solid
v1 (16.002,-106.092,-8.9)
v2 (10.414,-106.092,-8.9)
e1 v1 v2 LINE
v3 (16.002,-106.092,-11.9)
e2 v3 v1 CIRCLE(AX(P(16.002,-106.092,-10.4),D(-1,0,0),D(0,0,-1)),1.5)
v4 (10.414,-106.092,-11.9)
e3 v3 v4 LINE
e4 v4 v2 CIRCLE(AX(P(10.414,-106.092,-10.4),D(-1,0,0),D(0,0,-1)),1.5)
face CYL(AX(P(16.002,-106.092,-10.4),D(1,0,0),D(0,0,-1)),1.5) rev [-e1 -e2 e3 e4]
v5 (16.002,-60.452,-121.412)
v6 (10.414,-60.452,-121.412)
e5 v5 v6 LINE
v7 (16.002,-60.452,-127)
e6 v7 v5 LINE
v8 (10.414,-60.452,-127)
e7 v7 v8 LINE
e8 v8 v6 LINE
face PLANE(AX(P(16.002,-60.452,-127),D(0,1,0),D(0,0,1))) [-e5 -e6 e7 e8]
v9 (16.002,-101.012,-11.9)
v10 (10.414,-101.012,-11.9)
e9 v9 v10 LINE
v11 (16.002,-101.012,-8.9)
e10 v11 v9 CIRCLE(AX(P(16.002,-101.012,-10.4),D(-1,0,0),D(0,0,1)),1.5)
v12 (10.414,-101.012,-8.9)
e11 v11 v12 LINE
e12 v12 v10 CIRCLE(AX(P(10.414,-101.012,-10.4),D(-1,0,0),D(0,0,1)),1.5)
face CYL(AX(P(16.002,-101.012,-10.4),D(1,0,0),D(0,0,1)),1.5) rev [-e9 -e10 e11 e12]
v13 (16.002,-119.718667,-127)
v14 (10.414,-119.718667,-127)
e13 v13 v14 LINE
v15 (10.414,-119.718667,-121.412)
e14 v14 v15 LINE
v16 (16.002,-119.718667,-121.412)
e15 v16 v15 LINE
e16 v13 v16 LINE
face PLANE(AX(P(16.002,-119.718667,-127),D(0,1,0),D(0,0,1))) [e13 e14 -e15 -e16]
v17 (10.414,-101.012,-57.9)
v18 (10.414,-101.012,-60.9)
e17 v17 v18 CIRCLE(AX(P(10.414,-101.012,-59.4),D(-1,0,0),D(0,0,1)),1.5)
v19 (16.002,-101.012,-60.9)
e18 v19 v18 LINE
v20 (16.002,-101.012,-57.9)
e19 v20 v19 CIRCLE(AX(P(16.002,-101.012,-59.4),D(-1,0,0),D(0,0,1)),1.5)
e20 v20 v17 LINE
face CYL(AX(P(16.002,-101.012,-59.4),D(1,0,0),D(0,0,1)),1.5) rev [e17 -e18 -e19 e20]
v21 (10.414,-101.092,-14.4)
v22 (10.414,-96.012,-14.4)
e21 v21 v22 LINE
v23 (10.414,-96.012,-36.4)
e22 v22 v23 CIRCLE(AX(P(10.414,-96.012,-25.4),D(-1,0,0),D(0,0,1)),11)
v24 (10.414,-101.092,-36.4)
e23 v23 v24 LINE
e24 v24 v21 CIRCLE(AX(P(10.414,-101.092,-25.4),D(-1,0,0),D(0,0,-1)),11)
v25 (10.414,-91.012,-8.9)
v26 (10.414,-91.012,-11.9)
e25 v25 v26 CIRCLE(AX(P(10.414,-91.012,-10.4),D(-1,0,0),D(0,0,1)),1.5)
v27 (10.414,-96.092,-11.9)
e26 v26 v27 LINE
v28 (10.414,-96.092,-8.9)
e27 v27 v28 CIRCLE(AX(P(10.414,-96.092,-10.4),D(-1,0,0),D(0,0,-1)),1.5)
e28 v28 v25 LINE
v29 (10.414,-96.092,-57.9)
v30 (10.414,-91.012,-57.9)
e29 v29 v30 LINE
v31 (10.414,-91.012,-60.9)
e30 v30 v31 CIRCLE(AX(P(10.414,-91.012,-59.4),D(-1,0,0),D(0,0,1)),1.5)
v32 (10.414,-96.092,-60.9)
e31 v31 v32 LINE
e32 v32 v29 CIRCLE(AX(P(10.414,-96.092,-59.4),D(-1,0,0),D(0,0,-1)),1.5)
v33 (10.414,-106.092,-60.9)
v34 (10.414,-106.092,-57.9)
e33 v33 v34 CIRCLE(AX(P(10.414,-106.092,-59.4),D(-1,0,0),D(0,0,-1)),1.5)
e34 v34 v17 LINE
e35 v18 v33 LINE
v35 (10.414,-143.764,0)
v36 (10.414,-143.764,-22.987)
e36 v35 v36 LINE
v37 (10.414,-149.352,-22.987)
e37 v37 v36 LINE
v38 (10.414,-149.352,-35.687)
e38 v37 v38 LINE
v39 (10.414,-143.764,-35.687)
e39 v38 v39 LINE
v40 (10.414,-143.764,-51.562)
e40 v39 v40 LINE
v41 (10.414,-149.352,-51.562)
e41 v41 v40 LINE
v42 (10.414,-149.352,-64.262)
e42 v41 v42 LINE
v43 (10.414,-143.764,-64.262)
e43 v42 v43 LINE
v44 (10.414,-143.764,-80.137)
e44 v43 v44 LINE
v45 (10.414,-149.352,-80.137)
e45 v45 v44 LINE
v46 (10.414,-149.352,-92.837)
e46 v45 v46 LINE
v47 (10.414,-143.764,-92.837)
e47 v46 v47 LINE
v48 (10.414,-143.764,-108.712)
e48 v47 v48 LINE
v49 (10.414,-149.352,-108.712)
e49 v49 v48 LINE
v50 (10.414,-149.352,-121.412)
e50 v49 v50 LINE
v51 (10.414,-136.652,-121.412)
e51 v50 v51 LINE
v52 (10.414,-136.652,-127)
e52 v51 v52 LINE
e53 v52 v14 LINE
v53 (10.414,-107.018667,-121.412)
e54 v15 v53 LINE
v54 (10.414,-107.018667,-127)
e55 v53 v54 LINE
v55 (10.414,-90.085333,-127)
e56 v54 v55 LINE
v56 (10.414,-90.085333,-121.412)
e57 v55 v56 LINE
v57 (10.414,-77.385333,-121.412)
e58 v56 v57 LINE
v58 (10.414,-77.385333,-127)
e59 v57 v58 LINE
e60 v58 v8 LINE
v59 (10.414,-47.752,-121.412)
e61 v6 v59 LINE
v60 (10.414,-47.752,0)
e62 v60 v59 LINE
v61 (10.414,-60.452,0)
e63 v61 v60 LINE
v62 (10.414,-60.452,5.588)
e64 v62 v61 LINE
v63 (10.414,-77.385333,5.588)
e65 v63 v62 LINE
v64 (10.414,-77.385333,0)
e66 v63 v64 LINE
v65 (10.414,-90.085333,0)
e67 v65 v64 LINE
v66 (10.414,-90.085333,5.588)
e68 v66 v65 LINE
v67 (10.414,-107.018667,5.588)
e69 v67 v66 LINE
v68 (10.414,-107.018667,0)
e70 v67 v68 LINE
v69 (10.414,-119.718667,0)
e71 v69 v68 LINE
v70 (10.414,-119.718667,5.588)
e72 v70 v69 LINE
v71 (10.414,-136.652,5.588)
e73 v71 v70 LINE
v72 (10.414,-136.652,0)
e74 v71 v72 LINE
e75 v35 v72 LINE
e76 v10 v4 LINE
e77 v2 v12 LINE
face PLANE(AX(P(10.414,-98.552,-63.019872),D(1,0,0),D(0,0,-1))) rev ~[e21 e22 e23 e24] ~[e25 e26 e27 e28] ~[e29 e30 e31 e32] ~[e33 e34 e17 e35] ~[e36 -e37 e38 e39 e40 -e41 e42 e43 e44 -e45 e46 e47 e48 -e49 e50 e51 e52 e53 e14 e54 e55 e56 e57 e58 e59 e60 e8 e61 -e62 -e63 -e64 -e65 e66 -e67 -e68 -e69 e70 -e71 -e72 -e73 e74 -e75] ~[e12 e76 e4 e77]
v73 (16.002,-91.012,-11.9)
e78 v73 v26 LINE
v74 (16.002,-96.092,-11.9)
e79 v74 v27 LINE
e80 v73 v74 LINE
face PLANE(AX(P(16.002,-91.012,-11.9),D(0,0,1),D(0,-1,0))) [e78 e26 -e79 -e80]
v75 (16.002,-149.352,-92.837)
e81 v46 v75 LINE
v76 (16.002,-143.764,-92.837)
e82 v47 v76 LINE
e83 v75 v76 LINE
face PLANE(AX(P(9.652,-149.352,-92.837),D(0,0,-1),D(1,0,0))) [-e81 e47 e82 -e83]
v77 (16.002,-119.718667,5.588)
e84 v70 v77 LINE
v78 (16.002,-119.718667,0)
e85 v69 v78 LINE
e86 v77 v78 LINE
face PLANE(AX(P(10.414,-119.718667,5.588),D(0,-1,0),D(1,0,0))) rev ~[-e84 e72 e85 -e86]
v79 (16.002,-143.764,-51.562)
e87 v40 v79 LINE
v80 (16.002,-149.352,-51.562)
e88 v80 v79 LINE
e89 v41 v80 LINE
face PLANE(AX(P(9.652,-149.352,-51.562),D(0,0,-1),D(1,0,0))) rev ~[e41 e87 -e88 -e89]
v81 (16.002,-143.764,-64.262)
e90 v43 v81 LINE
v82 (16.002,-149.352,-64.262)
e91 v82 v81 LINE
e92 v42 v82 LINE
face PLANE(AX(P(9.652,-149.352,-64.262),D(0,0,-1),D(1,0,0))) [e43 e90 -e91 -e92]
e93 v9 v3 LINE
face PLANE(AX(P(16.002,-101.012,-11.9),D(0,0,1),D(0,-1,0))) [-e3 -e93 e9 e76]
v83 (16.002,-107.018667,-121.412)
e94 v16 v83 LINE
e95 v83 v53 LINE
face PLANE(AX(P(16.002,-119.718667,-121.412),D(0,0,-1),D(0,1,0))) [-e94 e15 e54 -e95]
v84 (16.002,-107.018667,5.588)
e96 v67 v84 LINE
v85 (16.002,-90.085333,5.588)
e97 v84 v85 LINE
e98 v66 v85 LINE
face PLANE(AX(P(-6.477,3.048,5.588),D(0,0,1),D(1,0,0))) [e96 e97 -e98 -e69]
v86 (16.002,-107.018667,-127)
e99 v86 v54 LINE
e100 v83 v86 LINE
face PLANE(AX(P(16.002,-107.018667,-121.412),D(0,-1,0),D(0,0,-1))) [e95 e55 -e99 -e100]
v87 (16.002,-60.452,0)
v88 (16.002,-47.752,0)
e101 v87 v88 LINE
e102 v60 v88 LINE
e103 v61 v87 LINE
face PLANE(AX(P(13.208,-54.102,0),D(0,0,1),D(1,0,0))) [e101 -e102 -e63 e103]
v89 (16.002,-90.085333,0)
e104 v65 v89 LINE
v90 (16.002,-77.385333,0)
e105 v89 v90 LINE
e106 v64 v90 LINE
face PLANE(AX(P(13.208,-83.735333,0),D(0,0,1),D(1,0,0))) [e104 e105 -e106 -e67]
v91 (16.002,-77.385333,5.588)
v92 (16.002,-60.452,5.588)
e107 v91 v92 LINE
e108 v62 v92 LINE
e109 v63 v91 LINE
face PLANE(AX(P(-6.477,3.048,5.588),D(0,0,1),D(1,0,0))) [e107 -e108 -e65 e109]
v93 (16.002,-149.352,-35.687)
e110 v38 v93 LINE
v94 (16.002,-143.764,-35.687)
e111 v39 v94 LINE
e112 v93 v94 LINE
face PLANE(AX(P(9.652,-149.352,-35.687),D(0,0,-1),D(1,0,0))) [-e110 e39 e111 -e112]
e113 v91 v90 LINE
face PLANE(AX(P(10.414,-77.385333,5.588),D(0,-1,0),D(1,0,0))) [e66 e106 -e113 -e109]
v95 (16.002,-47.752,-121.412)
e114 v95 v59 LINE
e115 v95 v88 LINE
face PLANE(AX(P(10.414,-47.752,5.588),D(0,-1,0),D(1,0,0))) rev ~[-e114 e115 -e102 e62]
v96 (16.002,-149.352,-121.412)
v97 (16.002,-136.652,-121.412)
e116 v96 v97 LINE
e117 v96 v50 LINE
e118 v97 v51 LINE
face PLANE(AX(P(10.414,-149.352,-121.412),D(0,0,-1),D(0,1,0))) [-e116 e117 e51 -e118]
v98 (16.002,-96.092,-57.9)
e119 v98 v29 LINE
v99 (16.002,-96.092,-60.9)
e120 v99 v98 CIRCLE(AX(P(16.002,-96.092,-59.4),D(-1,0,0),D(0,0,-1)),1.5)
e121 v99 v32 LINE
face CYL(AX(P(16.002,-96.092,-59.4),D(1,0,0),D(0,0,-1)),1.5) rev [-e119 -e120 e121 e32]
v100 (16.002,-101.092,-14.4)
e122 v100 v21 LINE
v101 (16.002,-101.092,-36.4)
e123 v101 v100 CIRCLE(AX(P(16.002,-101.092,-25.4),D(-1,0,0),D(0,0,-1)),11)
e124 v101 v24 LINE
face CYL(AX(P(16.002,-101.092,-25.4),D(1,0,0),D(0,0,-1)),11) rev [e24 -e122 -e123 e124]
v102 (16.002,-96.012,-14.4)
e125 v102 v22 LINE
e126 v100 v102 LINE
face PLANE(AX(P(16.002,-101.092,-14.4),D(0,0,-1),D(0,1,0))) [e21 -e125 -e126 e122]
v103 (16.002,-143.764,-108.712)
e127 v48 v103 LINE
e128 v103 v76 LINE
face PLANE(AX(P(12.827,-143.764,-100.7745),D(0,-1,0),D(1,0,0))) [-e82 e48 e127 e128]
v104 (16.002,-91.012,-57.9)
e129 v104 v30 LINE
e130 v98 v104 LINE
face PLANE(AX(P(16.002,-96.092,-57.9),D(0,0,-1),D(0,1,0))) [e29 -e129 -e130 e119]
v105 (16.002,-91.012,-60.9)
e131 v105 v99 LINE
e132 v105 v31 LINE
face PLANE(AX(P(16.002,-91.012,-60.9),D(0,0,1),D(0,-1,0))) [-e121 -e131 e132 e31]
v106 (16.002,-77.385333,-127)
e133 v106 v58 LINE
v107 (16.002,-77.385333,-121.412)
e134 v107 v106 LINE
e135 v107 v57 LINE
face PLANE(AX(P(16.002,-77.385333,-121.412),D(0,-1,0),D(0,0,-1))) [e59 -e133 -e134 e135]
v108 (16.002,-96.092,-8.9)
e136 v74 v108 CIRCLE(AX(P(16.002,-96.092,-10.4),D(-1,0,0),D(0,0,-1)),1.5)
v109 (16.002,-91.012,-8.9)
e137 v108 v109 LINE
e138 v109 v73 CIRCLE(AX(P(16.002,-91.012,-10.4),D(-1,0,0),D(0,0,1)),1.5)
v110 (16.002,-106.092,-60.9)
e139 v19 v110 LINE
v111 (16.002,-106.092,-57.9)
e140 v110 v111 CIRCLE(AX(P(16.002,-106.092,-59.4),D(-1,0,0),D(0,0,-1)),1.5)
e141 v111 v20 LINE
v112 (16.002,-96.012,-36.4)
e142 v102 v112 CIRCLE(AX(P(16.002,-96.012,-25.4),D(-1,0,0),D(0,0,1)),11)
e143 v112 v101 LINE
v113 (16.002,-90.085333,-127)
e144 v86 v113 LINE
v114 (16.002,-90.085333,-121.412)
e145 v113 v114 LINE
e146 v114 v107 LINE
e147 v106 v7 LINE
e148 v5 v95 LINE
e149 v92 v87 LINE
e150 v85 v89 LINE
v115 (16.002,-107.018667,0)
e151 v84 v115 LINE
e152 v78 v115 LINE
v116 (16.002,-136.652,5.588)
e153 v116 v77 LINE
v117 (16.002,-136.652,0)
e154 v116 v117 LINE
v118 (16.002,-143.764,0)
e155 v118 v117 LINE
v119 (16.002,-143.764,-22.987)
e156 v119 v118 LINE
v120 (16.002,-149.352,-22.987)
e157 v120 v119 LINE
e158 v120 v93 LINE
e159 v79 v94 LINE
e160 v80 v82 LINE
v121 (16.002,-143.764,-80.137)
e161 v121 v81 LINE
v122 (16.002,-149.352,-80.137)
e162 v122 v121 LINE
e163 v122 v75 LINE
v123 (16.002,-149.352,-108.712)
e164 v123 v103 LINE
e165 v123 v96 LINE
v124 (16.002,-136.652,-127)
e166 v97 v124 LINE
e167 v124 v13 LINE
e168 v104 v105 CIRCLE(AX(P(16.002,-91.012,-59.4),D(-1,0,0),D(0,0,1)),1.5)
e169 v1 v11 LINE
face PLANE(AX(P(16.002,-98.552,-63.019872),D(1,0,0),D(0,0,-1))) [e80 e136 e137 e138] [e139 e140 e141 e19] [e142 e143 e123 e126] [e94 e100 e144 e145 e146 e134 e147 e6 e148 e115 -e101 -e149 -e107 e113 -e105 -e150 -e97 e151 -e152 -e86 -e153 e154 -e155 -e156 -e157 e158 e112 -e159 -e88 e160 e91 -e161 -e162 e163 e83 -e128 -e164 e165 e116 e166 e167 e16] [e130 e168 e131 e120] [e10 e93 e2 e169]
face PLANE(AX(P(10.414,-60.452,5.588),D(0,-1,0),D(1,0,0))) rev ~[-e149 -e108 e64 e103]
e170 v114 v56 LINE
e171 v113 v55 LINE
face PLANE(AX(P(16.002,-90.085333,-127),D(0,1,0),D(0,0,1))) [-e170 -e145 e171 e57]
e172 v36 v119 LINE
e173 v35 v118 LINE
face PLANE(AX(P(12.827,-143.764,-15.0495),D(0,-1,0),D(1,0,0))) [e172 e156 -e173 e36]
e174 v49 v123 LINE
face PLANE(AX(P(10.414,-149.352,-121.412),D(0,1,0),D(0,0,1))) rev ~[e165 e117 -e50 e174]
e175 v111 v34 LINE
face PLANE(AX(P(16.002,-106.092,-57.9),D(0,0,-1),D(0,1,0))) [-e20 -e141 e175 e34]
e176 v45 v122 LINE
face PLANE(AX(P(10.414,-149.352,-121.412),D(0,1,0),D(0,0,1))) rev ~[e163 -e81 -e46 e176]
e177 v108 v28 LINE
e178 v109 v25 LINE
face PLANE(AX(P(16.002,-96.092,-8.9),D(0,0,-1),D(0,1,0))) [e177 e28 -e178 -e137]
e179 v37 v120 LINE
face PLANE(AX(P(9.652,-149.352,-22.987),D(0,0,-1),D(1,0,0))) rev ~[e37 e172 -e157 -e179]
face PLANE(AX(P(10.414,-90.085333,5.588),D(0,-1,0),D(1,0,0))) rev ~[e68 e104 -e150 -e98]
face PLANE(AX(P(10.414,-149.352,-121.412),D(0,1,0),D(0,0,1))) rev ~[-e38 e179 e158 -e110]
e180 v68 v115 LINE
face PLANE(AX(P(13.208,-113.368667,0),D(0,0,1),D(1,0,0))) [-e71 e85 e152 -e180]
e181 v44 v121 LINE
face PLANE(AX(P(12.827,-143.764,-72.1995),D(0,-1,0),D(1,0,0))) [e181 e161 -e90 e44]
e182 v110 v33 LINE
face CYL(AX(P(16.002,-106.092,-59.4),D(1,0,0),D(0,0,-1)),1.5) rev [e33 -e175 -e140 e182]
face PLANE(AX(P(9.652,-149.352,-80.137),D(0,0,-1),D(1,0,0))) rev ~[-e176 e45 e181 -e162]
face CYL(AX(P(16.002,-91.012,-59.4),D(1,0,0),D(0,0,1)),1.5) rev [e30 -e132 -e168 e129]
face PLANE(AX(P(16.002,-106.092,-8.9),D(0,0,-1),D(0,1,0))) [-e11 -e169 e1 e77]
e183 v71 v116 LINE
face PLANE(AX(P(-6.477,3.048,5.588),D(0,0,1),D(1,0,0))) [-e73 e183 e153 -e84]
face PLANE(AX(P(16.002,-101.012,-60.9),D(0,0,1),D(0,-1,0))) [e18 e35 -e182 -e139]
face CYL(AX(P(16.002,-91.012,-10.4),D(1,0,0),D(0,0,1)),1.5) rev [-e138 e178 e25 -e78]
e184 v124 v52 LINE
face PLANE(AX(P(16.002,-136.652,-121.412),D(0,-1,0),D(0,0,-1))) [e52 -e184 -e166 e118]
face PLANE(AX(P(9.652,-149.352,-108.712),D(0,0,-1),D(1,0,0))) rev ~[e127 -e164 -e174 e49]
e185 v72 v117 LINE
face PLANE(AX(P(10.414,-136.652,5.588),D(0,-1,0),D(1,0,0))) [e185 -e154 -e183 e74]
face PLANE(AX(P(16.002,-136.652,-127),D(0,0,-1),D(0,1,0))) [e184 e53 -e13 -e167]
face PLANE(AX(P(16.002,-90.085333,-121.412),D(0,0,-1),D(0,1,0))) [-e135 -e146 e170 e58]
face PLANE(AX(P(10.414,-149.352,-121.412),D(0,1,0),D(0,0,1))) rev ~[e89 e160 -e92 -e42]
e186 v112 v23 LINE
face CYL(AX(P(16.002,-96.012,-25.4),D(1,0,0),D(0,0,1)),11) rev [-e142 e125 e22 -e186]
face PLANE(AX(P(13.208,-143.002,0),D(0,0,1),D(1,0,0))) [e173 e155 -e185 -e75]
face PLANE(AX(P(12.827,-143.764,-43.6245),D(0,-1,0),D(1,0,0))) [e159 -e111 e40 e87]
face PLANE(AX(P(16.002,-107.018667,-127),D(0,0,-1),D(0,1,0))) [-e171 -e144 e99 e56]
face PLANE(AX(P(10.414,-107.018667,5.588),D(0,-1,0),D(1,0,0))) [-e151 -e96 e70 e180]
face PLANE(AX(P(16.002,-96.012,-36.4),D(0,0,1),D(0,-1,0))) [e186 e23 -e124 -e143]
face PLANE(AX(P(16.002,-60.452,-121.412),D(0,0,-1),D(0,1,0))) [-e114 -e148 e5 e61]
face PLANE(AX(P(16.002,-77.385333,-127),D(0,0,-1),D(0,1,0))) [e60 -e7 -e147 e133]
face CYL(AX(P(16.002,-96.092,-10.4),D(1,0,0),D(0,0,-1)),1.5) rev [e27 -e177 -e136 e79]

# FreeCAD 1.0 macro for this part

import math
import FreeCAD as App
import Part
import Sketcher

V = App.Vector
Q = App.Units.Quantity


def add_polygon(sketch, points):
    """Adds a closed chain of lines whose ends are joined by coincident constraints."""
    first, n = sketch.GeometryCount, len(points)
    for a, b in zip(points, points[1:] + points[:1]):
        sketch.addGeometry(Part.LineSegment(App.Vector(*a, 0), App.Vector(*b, 0)), False)
    for i in range(n):
        sketch.addConstraint(Sketcher.Constraint("Coincident", first + i, 2, first + (i + 1) % n, 1))

doc = App.newDocument("Part")
params = doc.addObject("Spreadsheet::Sheet", "Params")
for row, (alias, value) in enumerate([
    ("sketch1_radius", "0.1 in"),
    ("sketch1_height", "12 in"),
    ("sketch1_height2", "10.9 in"),
    ("sketch1_width", "1.77 in"),
    ("sketch1_width2", "0.41 in"),
    ("pad1_length", "0.22 in"),
    ("sketch2_width", "4 in"),
    ("sketch2_height", "5 in"),
    ("sketch2_width2", "0.5 in"),
    ("sketch2_width3", "0.2 in"),
    ("sketch2_height2", "0.22 in"),
    ("pad2_length", "0.22 in"),
    ("sketch3_width", "0.22 in"),
    ("sketch3_height", "4.78 in"),
    ("pad3_length", "1.55 in"),
    ("sketch4_radius", "0.1 in"),
    ("sketch4_height", "4 in"),
    ("sketch4_height2", "10.9 in"),
    ("sketch4_width", "0.22 in"),
    ("sketch4_width2", "0.41 in"),
    ("sketch5_height", "0.5 in"),
    ("sketch5_width", "0.22 in"),
    ("pocket2_length", "0.22 in"),
    ("sketch6_width", "0.25 in"),
    ("sketch6_height", "0.625 in"),
    ("sketch6_height2", "1.125 in"),
    ("pocket3_length", "0.22 in"),
], start=1):
    params.set(f"A{row}", alias)
    params.set(f"B{row}", "=" + value)
    params.setAlias(f"B{row}", alias)

body = doc.addObject("PartDesign::Body", "Body")

# Sketch on XY plane
sketch1 = body.newObject("Sketcher::SketchObject", "Sketch")
sketch1.AttachmentSupport = (doc.getObject("XY_Plane"), [""])
sketch1.MapMode = "FlatFace"
add_polygon(sketch1, [(-29, 155.4), (-29, -149.4), (16, -149.4), (16, 155.4)])  # lines 0-3
sketch1.addGeometry(Part.LineSegment(V(-3.3, -143, 0), V(-3.3, 133.9, 0)), False)  # 4
sketch1.addGeometry(Part.ArcOfCircle(Part.Circle(V(-5.8, 133.9, 0), V(0, 0, 1), 2.5), math.radians(0), math.radians(90)), False)  # 5
sketch1.addGeometry(Part.LineSegment(V(-5.8, 136.4, 0), V(-16.3, 136.4, 0)), False)  # 6
sketch1.addGeometry(Part.LineSegment(V(-16.3, 136.4, 0), V(-16.3, 143, 0)), False)  # 7
sketch1.addGeometry(Part.LineSegment(V(-16.3, 143, 0), V(3.3, 143, 0)), False)  # 8
sketch1.addGeometry(Part.LineSegment(V(3.3, 143, 0), V(3.3, -143, 0)), False)  # 9
sketch1.addGeometry(Part.LineSegment(V(3.3, -143, 0), V(-3.3, -143, 0)), False)  # 10
sketch1.addConstraint(Sketcher.Constraint("Tangent", 4, 2, 5, 1))
sketch1.addConstraint(Sketcher.Constraint("Tangent", 5, 2, 6, 1))
sketch1.addConstraint(Sketcher.Constraint("Coincident", 6, 2, 7, 1))
sketch1.addConstraint(Sketcher.Constraint("Coincident", 7, 2, 8, 1))
sketch1.addConstraint(Sketcher.Constraint("Coincident", 8, 2, 9, 1))
sketch1.addConstraint(Sketcher.Constraint("Coincident", 9, 2, 10, 1))
sketch1.addConstraint(Sketcher.Constraint("Coincident", 10, 2, 4, 1))
sketch1.addConstraint(Sketcher.Constraint("Vertical", 0))
sketch1.addConstraint(Sketcher.Constraint("Horizontal", 1))
sketch1.addConstraint(Sketcher.Constraint("Vertical", 2))
sketch1.addConstraint(Sketcher.Constraint("Horizontal", 3))
sketch1.addConstraint(Sketcher.Constraint("Vertical", 4))
sketch1.addConstraint(Sketcher.Constraint("Horizontal", 6))
sketch1.addConstraint(Sketcher.Constraint("Vertical", 7))
sketch1.addConstraint(Sketcher.Constraint("Horizontal", 8))
sketch1.addConstraint(Sketcher.Constraint("Vertical", 9))
sketch1.addConstraint(Sketcher.Constraint("Horizontal", 10))
sketch1.addConstraint(Sketcher.Constraint("Symmetric", 8, 2, 10, 2, -1, 1))
sketch1.addConstraint(Sketcher.Constraint("Equal", 10, 7))
sketch1.addConstraint(Sketcher.Constraint("Radius", 5, Q("0.1 in")))
sketch1.addConstraint(Sketcher.Constraint("DistanceY", 0, 2, 0, 1, Q("12 in")))
sketch1.addConstraint(Sketcher.Constraint("DistanceY", 4, 1, 4, 2, Q("10.9 in")))
sketch1.addConstraint(Sketcher.Constraint("DistanceX", 1, 1, 1, 2, Q("1.77 in")))
sketch1.addConstraint(Sketcher.Constraint("DistanceX", 6, 2, 6, 1, Q("0.41 in")))
sketch1.addConstraint(Sketcher.Constraint("DistanceX", 8, 1, 8, 2, Q("0.77 in")))
sketch1.addConstraint(Sketcher.Constraint("DistanceX", 3, 2, 6, 2, Q("0.5 in")))
sketch1.addConstraint(Sketcher.Constraint("DistanceY", 0, 2, -1, 1, Q("5.88 in")))
sketch1.setExpression("Constraints[23]", "Params.sketch1_radius")
sketch1.setExpression("Constraints[24]", "Params.sketch1_height")
sketch1.setExpression("Constraints[25]", "Params.sketch1_height2")
sketch1.setExpression("Constraints[26]", "Params.sketch1_width")
sketch1.setExpression("Constraints[27]", "Params.sketch1_width2")
pad1 = body.newObject("PartDesign::Pad", "Pad")
pad1.Profile = sketch1
pad1.setExpression("Length", "Params.pad1_length")

# Sketch on YZ plane
sketch2 = body.newObject("Sketcher::SketchObject", "Sketch001")
sketch2.AttachmentSupport = (doc.getObject("YZ_Plane"), [""])
sketch2.MapMode = "FlatFace"
sketch2.AttachmentOffset = App.Placement(V(0, 0, 0.63 * 25.4), App.Rotation())
add_polygon(sketch2, [(-47.8, -121.4), (-47.8, 5.6), (-149.4, 5.6), (-149.4, -121.4), (-136.7, -121.4), (-136.7, -127), (-119.7, -127), (-119.7, -121.4), (-107, -121.4), (-107, -127), (-90.1, -127), (-90.1, -121.4), (-77.4, -121.4), (-77.4, -127), (-60.5, -127), (-60.5, -121.4)])  # lines 0-15
sketch2.addGeometry(Part.LineSegment(V(-101, -11.9, 0), V(-106.1, -11.9, 0)), False)  # 16
sketch2.addGeometry(Part.ArcOfCircle(Part.Circle(V(-106.1, -10.4, 0), V(0, 0, 1), 1.5), math.radians(90), math.radians(270)), False)  # 17
sketch2.addGeometry(Part.LineSegment(V(-106.1, -8.9, 0), V(-101, -8.9, 0)), False)  # 18
sketch2.addGeometry(Part.ArcOfCircle(Part.Circle(V(-101, -10.4, 0), V(0, 0, 1), 1.5), math.radians(-90), math.radians(90)), False)  # 19
sketch2.addGeometry(Part.LineSegment(V(-101, -60.9, 0), V(-106.1, -60.9, 0)), False)  # 20
sketch2.addGeometry(Part.ArcOfCircle(Part.Circle(V(-106.1, -59.4, 0), V(0, 0, 1), 1.5), math.radians(90), math.radians(270)), False)  # 21
sketch2.addGeometry(Part.LineSegment(V(-106.1, -57.9, 0), V(-101, -57.9, 0)), False)  # 22
sketch2.addGeometry(Part.ArcOfCircle(Part.Circle(V(-101, -59.4, 0), V(0, 0, 1), 1.5), math.radians(-90), math.radians(90)), False)  # 23
sketch2.addGeometry(Part.ArcOfCircle(Part.Circle(V(-96.1, -10.4, 0), V(0, 0, 1), 1.5), math.radians(90), math.radians(270)), False)  # 24
sketch2.addGeometry(Part.LineSegment(V(-96.1, -8.9, 0), V(-91, -8.9, 0)), False)  # 25
sketch2.addGeometry(Part.ArcOfCircle(Part.Circle(V(-91, -10.4, 0), V(0, 0, 1), 1.5), math.radians(-90), math.radians(90)), False)  # 26
sketch2.addGeometry(Part.LineSegment(V(-91, -11.9, 0), V(-96.1, -11.9, 0)), False)  # 27
sketch2.addGeometry(Part.LineSegment(V(-96, -36.4, 0), V(-101.1, -36.4, 0)), False)  # 28
sketch2.addGeometry(Part.ArcOfCircle(Part.Circle(V(-101.1, -25.4, 0), V(0, 0, 1), 11), math.radians(90), math.radians(270)), False)  # 29
sketch2.addGeometry(Part.LineSegment(V(-101.1, -14.4, 0), V(-96, -14.4, 0)), False)  # 30
sketch2.addGeometry(Part.ArcOfCircle(Part.Circle(V(-96, -25.4, 0), V(0, 0, 1), 11), math.radians(-90), math.radians(90)), False)  # 31
sketch2.addGeometry(Part.LineSegment(V(-96.1, -57.9, 0), V(-91, -57.9, 0)), False)  # 32
sketch2.addGeometry(Part.ArcOfCircle(Part.Circle(V(-91, -59.4, 0), V(0, 0, 1), 1.5), math.radians(-90), math.radians(90)), False)  # 33
sketch2.addGeometry(Part.LineSegment(V(-91, -60.9, 0), V(-96.1, -60.9, 0)), False)  # 34
sketch2.addGeometry(Part.ArcOfCircle(Part.Circle(V(-96.1, -59.4, 0), V(0, 0, 1), 1.5), math.radians(90), math.radians(270)), False)  # 35
sketch2.addConstraint(Sketcher.Constraint("Tangent", 16, 2, 17, 2))
sketch2.addConstraint(Sketcher.Constraint("Tangent", 17, 1, 18, 1))
sketch2.addConstraint(Sketcher.Constraint("Tangent", 18, 2, 19, 2))
sketch2.addConstraint(Sketcher.Constraint("Tangent", 19, 1, 16, 1))
sketch2.addConstraint(Sketcher.Constraint("Tangent", 20, 2, 21, 2))
sketch2.addConstraint(Sketcher.Constraint("Tangent", 21, 1, 22, 1))
sketch2.addConstraint(Sketcher.Constraint("Tangent", 22, 2, 23, 2))
sketch2.addConstraint(Sketcher.Constraint("Tangent", 23, 1, 20, 1))
sketch2.addConstraint(Sketcher.Constraint("Tangent", 24, 1, 25, 1))
sketch2.addConstraint(Sketcher.Constraint("Tangent", 25, 2, 26, 2))
sketch2.addConstraint(Sketcher.Constraint("Tangent", 26, 1, 27, 1))
sketch2.addConstraint(Sketcher.Constraint("Tangent", 27, 2, 24, 2))
sketch2.addConstraint(Sketcher.Constraint("Tangent", 28, 2, 29, 2))
sketch2.addConstraint(Sketcher.Constraint("Tangent", 29, 1, 30, 1))
sketch2.addConstraint(Sketcher.Constraint("Tangent", 30, 2, 31, 2))
sketch2.addConstraint(Sketcher.Constraint("Tangent", 31, 1, 28, 1))
sketch2.addConstraint(Sketcher.Constraint("Tangent", 32, 2, 33, 2))
sketch2.addConstraint(Sketcher.Constraint("Tangent", 33, 1, 34, 1))
sketch2.addConstraint(Sketcher.Constraint("Tangent", 34, 2, 35, 2))
sketch2.addConstraint(Sketcher.Constraint("Tangent", 35, 1, 32, 1))
sketch2.addConstraint(Sketcher.Constraint("Vertical", 0))
sketch2.addConstraint(Sketcher.Constraint("Horizontal", 1))
sketch2.addConstraint(Sketcher.Constraint("Vertical", 2))
sketch2.addConstraint(Sketcher.Constraint("Horizontal", 3))
sketch2.addConstraint(Sketcher.Constraint("Vertical", 4))
sketch2.addConstraint(Sketcher.Constraint("Horizontal", 5))
sketch2.addConstraint(Sketcher.Constraint("Vertical", 6))
sketch2.addConstraint(Sketcher.Constraint("Horizontal", 7))
sketch2.addConstraint(Sketcher.Constraint("Vertical", 8))
sketch2.addConstraint(Sketcher.Constraint("Horizontal", 9))
sketch2.addConstraint(Sketcher.Constraint("Vertical", 10))
sketch2.addConstraint(Sketcher.Constraint("Horizontal", 11))
sketch2.addConstraint(Sketcher.Constraint("Vertical", 12))
sketch2.addConstraint(Sketcher.Constraint("Horizontal", 13))
sketch2.addConstraint(Sketcher.Constraint("Vertical", 14))
sketch2.addConstraint(Sketcher.Constraint("Horizontal", 15))
sketch2.addConstraint(Sketcher.Constraint("Horizontal", 16))
sketch2.addConstraint(Sketcher.Constraint("Horizontal", 18))
sketch2.addConstraint(Sketcher.Constraint("Horizontal", 20))
sketch2.addConstraint(Sketcher.Constraint("Horizontal", 22))
sketch2.addConstraint(Sketcher.Constraint("Horizontal", 25))
sketch2.addConstraint(Sketcher.Constraint("Horizontal", 27))
sketch2.addConstraint(Sketcher.Constraint("Horizontal", 28))
sketch2.addConstraint(Sketcher.Constraint("Horizontal", 30))
sketch2.addConstraint(Sketcher.Constraint("Horizontal", 32))
sketch2.addConstraint(Sketcher.Constraint("Horizontal", 34))
sketch2.addConstraint(Sketcher.Constraint("Equal", 19, 21))
sketch2.addConstraint(Sketcher.Constraint("Equal", 23, 24))
sketch2.addConstraint(Sketcher.Constraint("Equal", 26, 33))
sketch2.addConstraint(Sketcher.Constraint("Horizontal", 19, 3, 24, 3))
sketch2.addConstraint(Sketcher.Constraint("Horizontal", 23, 3, 33, 3))
sketch2.addConstraint(Sketcher.Constraint("Horizontal", 3, 2, 6, 2))
sketch2.addConstraint(Sketcher.Constraint("Horizontal", 5, 2, 8, 2))
sketch2.addConstraint(Sketcher.Constraint("Horizontal", 7, 2, 10, 2))
sketch2.addConstraint(Sketcher.Constraint("Horizontal", 9, 2, 12, 2))
sketch2.addConstraint(Sketcher.Constraint("Horizontal", 11, 2, 14, 2))
sketch2.addConstraint(Sketcher.Constraint("Vertical", 17, 3, 21, 3))
sketch2.addConstraint(Sketcher.Constraint("Vertical", 19, 3, 23, 3))
sketch2.addConstraint(Sketcher.Constraint("Vertical", 26, 3, 33, 3))
sketch2.addConstraint(Sketcher.Constraint("Vertical", 24, 3, 35, 3))
sketch2.addConstraint(Sketcher.Constraint("Equal", 3, 7))
sketch2.addConstraint(Sketcher.Constraint("Equal", 5, 9))
sketch2.addConstraint(Sketcher.Constraint("Equal", 7, 11))
sketch2.addConstraint(Sketcher.Constraint("Equal", 9, 13))
sketch2.addConstraint(Sketcher.Constraint("Equal", 11, 15))
sketch2.addConstraint(Sketcher.Constraint("Equal", 22, 25))
sketch2.addConstraint(Sketcher.Constraint("Equal", 27, 28))
sketch2.addConstraint(Sketcher.Constraint("DistanceX", 1, 2, 1, 1, Q("4 in")))
sketch2.addConstraint(Sketcher.Constraint("DistanceY", 0, 1, 0, 2, Q("5 in")))
sketch2.addConstraint(Sketcher.Constraint("DistanceX", 3, 1, 3, 2, Q("0.5 in")))
sketch2.addConstraint(Sketcher.Constraint("DistanceX", 16, 2, 16, 1, Q("0.2 in")))
sketch2.addConstraint(Sketcher.Constraint("DistanceY", 29, 3, -1, 1, Q("1 in")))
sketch2.addConstraint(Sketcher.Constraint("DistanceY", 4, 2, -1, 1, Q("5 in")))
sketch2.addConstraint(Sketcher.Constraint("DistanceY", 4, 2, 4, 1, Q("0.22 in")))
sketch2.addConstraint(Sketcher.Constraint("DistanceX", 31, 3, 0, 2, Q("1.9 in")))
sketch2.addConstraint(Sketcher.Constraint("DistanceX", 29, 3, -1, 1, Q("3.98 in")))
sketch2.addConstraint(Sketcher.Constraint("Radius", 17, 1.5))
sketch2.addConstraint(Sketcher.Constraint("Radius", 29, 11.0))
sketch2.addConstraint(Sketcher.Constraint("DistanceX", 17, 3, -1, 1, 106.092))
sketch2.addConstraint(Sketcher.Constraint("DistanceY", 17, 3, -1, 1, 10.4))
sketch2.addConstraint(Sketcher.Constraint("DistanceY", 21, 3, -1, 1, 59.4))
sketch2.addConstraint(Sketcher.Constraint("DistanceX", 24, 3, -1, 1, 96.092))
sketch2.setExpression("Constraints[83]", "Params.sketch2_width")
sketch2.setExpression("Constraints[84]", "Params.sketch2_height")
sketch2.setExpression("Constraints[85]", "Params.sketch2_width2")
sketch2.setExpression("Constraints[86]", "Params.sketch2_width3")
sketch2.setExpression("Constraints[89]", "Params.sketch2_height2")
pad2 = body.newObject("PartDesign::Pad", "Pad001")
pad2.Profile = sketch2
pad2.setExpression("Length", "Params.pad2_length")
pad2.Reversed = True

# Sketch on YZ plane
sketch3 = body.newObject("Sketcher::SketchObject", "Sketch002")
sketch3.AttachmentSupport = (doc.getObject("YZ_Plane"), [""])
sketch3.MapMode = "FlatFace"
sketch3.AttachmentOffset = App.Placement(V(0, 0, 0.41 * 25.4), App.Rotation())
add_polygon(sketch3, [(-144, -121), (-149, -121), (-149, 0), (-144, 0)])  # lines 0-3
sketch3.addConstraint(Sketcher.Constraint("Horizontal", 0))
sketch3.addConstraint(Sketcher.Constraint("Vertical", 1))
sketch3.addConstraint(Sketcher.Constraint("Horizontal", 2))
sketch3.addConstraint(Sketcher.Constraint("Vertical", 3))
sketch3.addConstraint(Sketcher.Constraint("PointOnObject", 1, 2, -1))
sketch3.addConstraint(Sketcher.Constraint("DistanceX", 0, 2, 0, 1, Q("0.22 in")))
sketch3.addConstraint(Sketcher.Constraint("DistanceY", 1, 1, 1, 2, Q("4.78 in")))
sketch3.addConstraint(Sketcher.Constraint("DistanceX", 0, 2, -1, 1, Q("5.88 in")))
sketch3.setExpression("Constraints[9]", "Params.sketch3_width")
sketch3.setExpression("Constraints[10]", "Params.sketch3_height")
pad3 = body.newObject("PartDesign::Pad", "Pad002")
pad3.Profile = sketch3
pad3.setExpression("Length", "Params.pad3_length")
pad3.Reversed = True

# Sketch on XY plane
sketch4 = body.newObject("Sketcher::SketchObject", "Sketch003")
sketch4.AttachmentSupport = (doc.getObject("XY_Plane"), [""])
sketch4.MapMode = "FlatFace"
sketch4.AttachmentOffset = App.Placement(V(0, 0, 0.22 * 25.4), App.Rotation())
add_polygon(sketch4, [(10.4, -149.4), (10.4, -47.8), (16, -47.8), (16, 165.7), (-54.2, 165.7), (-54.2, -149.4)])  # lines 0-5
sketch4.addGeometry(Part.LineSegment(V(-5.8, 136.4, 0), V(-16.3, 136.4, 0)), False)  # 6
sketch4.addGeometry(Part.LineSegment(V(-16.3, 136.4, 0), V(-16.3, 143, 0)), False)  # 7
sketch4.addGeometry(Part.LineSegment(V(-16.3, 143, 0), V(3.3, 143, 0)), False)  # 8
sketch4.addGeometry(Part.LineSegment(V(3.3, 143, 0), V(3.3, -143, 0)), False)  # 9
sketch4.addGeometry(Part.LineSegment(V(3.3, -143, 0), V(-3.3, -143, 0)), False)  # 10
sketch4.addGeometry(Part.LineSegment(V(-3.3, -143, 0), V(-3.3, 133.9, 0)), False)  # 11
sketch4.addGeometry(Part.ArcOfCircle(Part.Circle(V(-5.8, 133.9, 0), V(0, 0, 1), 2.5), math.radians(0), math.radians(90)), False)  # 12
sketch4.addConstraint(Sketcher.Constraint("Coincident", 6, 2, 7, 1))
sketch4.addConstraint(Sketcher.Constraint("Coincident", 7, 2, 8, 1))
sketch4.addConstraint(Sketcher.Constraint("Coincident", 8, 2, 9, 1))
sketch4.addConstraint(Sketcher.Constraint("Coincident", 9, 2, 10, 1))
sketch4.addConstraint(Sketcher.Constraint("Coincident", 10, 2, 11, 1))
sketch4.addConstraint(Sketcher.Constraint("Tangent", 11, 2, 12, 1))
sketch4.addConstraint(Sketcher.Constraint("Tangent", 12, 2, 6, 1))
sketch4.addConstraint(Sketcher.Constraint("Vertical", 0))
sketch4.addConstraint(Sketcher.Constraint("Horizontal", 1))
sketch4.addConstraint(Sketcher.Constraint("Vertical", 2))
sketch4.addConstraint(Sketcher.Constraint("Horizontal", 3))
sketch4.addConstraint(Sketcher.Constraint("Vertical", 4))
sketch4.addConstraint(Sketcher.Constraint("Horizontal", 5))
sketch4.addConstraint(Sketcher.Constraint("Horizontal", 6))
sketch4.addConstraint(Sketcher.Constraint("Vertical", 7))
sketch4.addConstraint(Sketcher.Constraint("Horizontal", 8))
sketch4.addConstraint(Sketcher.Constraint("Vertical", 9))
sketch4.addConstraint(Sketcher.Constraint("Horizontal", 10))
sketch4.addConstraint(Sketcher.Constraint("Vertical", 11))
sketch4.addConstraint(Sketcher.Constraint("Symmetric", 8, 2, 10, 2, -1, 1))
sketch4.addConstraint(Sketcher.Constraint("Equal", 10, 7))
sketch4.addConstraint(Sketcher.Constraint("Radius", 12, Q("0.1 in")))
sketch4.addConstraint(Sketcher.Constraint("DistanceY", 0, 1, 0, 2, Q("4 in")))
sketch4.addConstraint(Sketcher.Constraint("DistanceY", 11, 1, 11, 2, Q("10.9 in")))
sketch4.addConstraint(Sketcher.Constraint("DistanceX", 1, 1, 1, 2, Q("0.22 in")))
sketch4.addConstraint(Sketcher.Constraint("DistanceX", 6, 2, 6, 1, Q("0.41 in")))
sketch4.addConstraint(Sketcher.Constraint("DistanceX", 8, 1, 8, 2, Q("0.77 in")))
sketch4.addConstraint(Sketcher.Constraint("DistanceX", 8, 2, 2, 2, Q("0.5 in")))
sketch4.addConstraint(Sketcher.Constraint("DistanceY", 0, 2, -1, 1, Q("1.88 in")))
sketch4.addConstraint(Sketcher.Constraint("DistanceY", 2, 1, 2, 2, 213.45135))
sketch4.addConstraint(Sketcher.Constraint("DistanceX", 3, 2, 3, 1, 70.225543))
sketch4.setExpression("Constraints[27]", "Params.sketch4_radius")
sketch4.setExpression("Constraints[28]", "Params.sketch4_height")
sketch4.setExpression("Constraints[29]", "Params.sketch4_height2")
sketch4.setExpression("Constraints[30]", "Params.sketch4_width")
sketch4.setExpression("Constraints[31]", "Params.sketch4_width2")
pocket1 = body.newObject("PartDesign::Pocket", "Pocket")
pocket1.Profile = sketch4
pocket1.Type = "ThroughAll"
pocket1.Midplane = True

# Sketch on XY plane
sketch5 = body.newObject("Sketcher::SketchObject", "Sketch004")
sketch5.AttachmentSupport = (doc.getObject("XY_Plane"), [""])
sketch5.MapMode = "FlatFace"
sketch5.AttachmentOffset = App.Placement(V(0, 0, 0.22 * 25.4), App.Rotation())
add_polygon(sketch5, [(10, -48), (10, -60), (16, -60), (16, -48)])  # lines 0-3
add_polygon(sketch5, [(10, -77), (10, -90), (16, -90), (16, -77)])  # lines 4-7
add_polygon(sketch5, [(10, -107), (10, -120), (16, -120), (16, -107)])  # lines 8-11
add_polygon(sketch5, [(10, -137), (10, -149), (16, -149), (16, -137)])  # lines 12-15
sketch5.addConstraint(Sketcher.Constraint("Vertical", 0))
sketch5.addConstraint(Sketcher.Constraint("Horizontal", 1))
sketch5.addConstraint(Sketcher.Constraint("Vertical", 2))
sketch5.addConstraint(Sketcher.Constraint("Horizontal", 3))
sketch5.addConstraint(Sketcher.Constraint("Vertical", 4))
sketch5.addConstraint(Sketcher.Constraint("Horizontal", 5))
sketch5.addConstraint(Sketcher.Constraint("Vertical", 6))
sketch5.addConstraint(Sketcher.Constraint("Horizontal", 7))
sketch5.addConstraint(Sketcher.Constraint("Vertical", 8))
sketch5.addConstraint(Sketcher.Constraint("Horizontal", 9))
sketch5.addConstraint(Sketcher.Constraint("Vertical", 10))
sketch5.addConstraint(Sketcher.Constraint("Horizontal", 11))
sketch5.addConstraint(Sketcher.Constraint("Vertical", 12))
sketch5.addConstraint(Sketcher.Constraint("Horizontal", 13))
sketch5.addConstraint(Sketcher.Constraint("Vertical", 14))
sketch5.addConstraint(Sketcher.Constraint("Horizontal", 15))
sketch5.addConstraint(Sketcher.Constraint("Vertical", 3, 2, 4, 2))
sketch5.addConstraint(Sketcher.Constraint("Vertical", 2, 2, 5, 2))
sketch5.addConstraint(Sketcher.Constraint("Vertical", 7, 2, 8, 2))
sketch5.addConstraint(Sketcher.Constraint("Vertical", 6, 2, 9, 2))
sketch5.addConstraint(Sketcher.Constraint("Vertical", 11, 2, 12, 2))
sketch5.addConstraint(Sketcher.Constraint("Vertical", 10, 2, 13, 2))
sketch5.addConstraint(Sketcher.Constraint("Equal", 2, 4))
sketch5.addConstraint(Sketcher.Constraint("Equal", 6, 8))
sketch5.addConstraint(Sketcher.Constraint("Equal", 10, 12))
sketch5.addConstraint(Sketcher.Constraint("DistanceY", 0, 2, 0, 1, Q("0.5 in")))
sketch5.addConstraint(Sketcher.Constraint("DistanceX", 1, 1, 1, 2, Q("0.22 in")))
sketch5.addConstraint(Sketcher.Constraint("DistanceX", -1, 1, 0, 2, Q("0.41 in")))
sketch5.addConstraint(Sketcher.Constraint("DistanceY", 0, 2, -1, 1, Q("2.38 in")))
sketch5.addConstraint(Sketcher.Constraint("DistanceY", 12, 2, -1, 1, Q("5.88 in")))
sketch5.addConstraint(Sketcher.Constraint("DistanceY", 4, 2, -1, 1, 90.085333))
sketch5.addConstraint(Sketcher.Constraint("DistanceY", 8, 2, -1, 1, 119.718667))
sketch5.setExpression("Constraints[41]", "Params.sketch5_height")
sketch5.setExpression("Constraints[42]", "Params.sketch5_width")
pocket2 = body.newObject("PartDesign::Pocket", "Pocket001")
pocket2.Profile = sketch5
pocket2.setExpression("Length", "Params.pocket2_length")

# Sketch on XZ plane
sketch6 = body.newObject("Sketcher::SketchObject", "Sketch005")
sketch6.AttachmentSupport = (doc.getObject("XZ_Plane"), [""])
sketch6.MapMode = "FlatFace"
sketch6.AttachmentOffset = App.Placement(V(0, 0, 5.88 * 25.4), App.Rotation())
add_polygon(sketch6, [(10, -93), (10, -109), (16, -109), (16, -93)])  # lines 0-3
add_polygon(sketch6, [(10, -64), (10, -80), (16, -80), (16, -64)])  # lines 4-7
add_polygon(sketch6, [(10, -36), (10, -52), (16, -52), (16, -36)])  # lines 8-11
add_polygon(sketch6, [(10, -23), (16, -23), (16, 6), (10, 6)])  # lines 12-15
sketch6.addConstraint(Sketcher.Constraint("Vertical", 0))
sketch6.addConstraint(Sketcher.Constraint("Horizontal", 1))
sketch6.addConstraint(Sketcher.Constraint("Vertical", 2))
sketch6.addConstraint(Sketcher.Constraint("Horizontal", 3))
sketch6.addConstraint(Sketcher.Constraint("Vertical", 4))
sketch6.addConstraint(Sketcher.Constraint("Horizontal", 5))
sketch6.addConstraint(Sketcher.Constraint("Vertical", 6))
sketch6.addConstraint(Sketcher.Constraint("Horizontal", 7))
sketch6.addConstraint(Sketcher.Constraint("Vertical", 8))
sketch6.addConstraint(Sketcher.Constraint("Horizontal", 9))
sketch6.addConstraint(Sketcher.Constraint("Vertical", 10))
sketch6.addConstraint(Sketcher.Constraint("Horizontal", 11))
sketch6.addConstraint(Sketcher.Constraint("Horizontal", 12))
sketch6.addConstraint(Sketcher.Constraint("Vertical", 13))
sketch6.addConstraint(Sketcher.Constraint("Horizontal", 14))
sketch6.addConstraint(Sketcher.Constraint("Vertical", 15))
sketch6.addConstraint(Sketcher.Constraint("Vertical", 3, 2, 4, 2))
sketch6.addConstraint(Sketcher.Constraint("Vertical", 2, 2, 5, 2))
sketch6.addConstraint(Sketcher.Constraint("Vertical", 7, 2, 8, 2))
sketch6.addConstraint(Sketcher.Constraint("Vertical", 6, 2, 9, 2))
sketch6.addConstraint(Sketcher.Constraint("Vertical", 10, 2, 12, 2))
sketch6.addConstraint(Sketcher.Constraint("Vertical", 11, 2, 14, 2))
sketch6.addConstraint(Sketcher.Constraint("Equal", 2, 4))
sketch6.addConstraint(Sketcher.Constraint("Equal", 6, 8))
sketch6.addConstraint(Sketcher.Constraint("DistanceX", 1, 1, 1, 2, Q("0.25 in")))
sketch6.addConstraint(Sketcher.Constraint("DistanceY", 3, 2, 4, 2, Q("0.5 in")))
sketch6.addConstraint(Sketcher.Constraint("DistanceY", 7, 2, 8, 2, Q("0.5 in")))
sketch6.addConstraint(Sketcher.Constraint("DistanceY", 10, 2, 12, 2, Q("0.5 in")))
sketch6.addConstraint(Sketcher.Constraint("DistanceY", 0, 2, 0, 1, Q("0.625 in")))
sketch6.addConstraint(Sketcher.Constraint("DistanceY", 13, 1, 13, 2, Q("1.125 in")))
sketch6.addConstraint(Sketcher.Constraint("DistanceX", -1, 1, 0, 2, Q("0.38 in")))
sketch6.addConstraint(Sketcher.Constraint("DistanceY", 0, 2, -1, 1, Q("4.28 in")))
sketch6.setExpression("Constraints[40]", "Params.sketch6_width")
sketch6.setExpression("Constraints[44]", "Params.sketch6_height")
sketch6.setExpression("Constraints[45]", "Params.sketch6_height2")
pocket3 = body.newObject("PartDesign::Pocket", "Pocket002")
pocket3.Profile = sketch6
pocket3.setExpression("Length", "Params.pocket3_length")

doc.recompute()
